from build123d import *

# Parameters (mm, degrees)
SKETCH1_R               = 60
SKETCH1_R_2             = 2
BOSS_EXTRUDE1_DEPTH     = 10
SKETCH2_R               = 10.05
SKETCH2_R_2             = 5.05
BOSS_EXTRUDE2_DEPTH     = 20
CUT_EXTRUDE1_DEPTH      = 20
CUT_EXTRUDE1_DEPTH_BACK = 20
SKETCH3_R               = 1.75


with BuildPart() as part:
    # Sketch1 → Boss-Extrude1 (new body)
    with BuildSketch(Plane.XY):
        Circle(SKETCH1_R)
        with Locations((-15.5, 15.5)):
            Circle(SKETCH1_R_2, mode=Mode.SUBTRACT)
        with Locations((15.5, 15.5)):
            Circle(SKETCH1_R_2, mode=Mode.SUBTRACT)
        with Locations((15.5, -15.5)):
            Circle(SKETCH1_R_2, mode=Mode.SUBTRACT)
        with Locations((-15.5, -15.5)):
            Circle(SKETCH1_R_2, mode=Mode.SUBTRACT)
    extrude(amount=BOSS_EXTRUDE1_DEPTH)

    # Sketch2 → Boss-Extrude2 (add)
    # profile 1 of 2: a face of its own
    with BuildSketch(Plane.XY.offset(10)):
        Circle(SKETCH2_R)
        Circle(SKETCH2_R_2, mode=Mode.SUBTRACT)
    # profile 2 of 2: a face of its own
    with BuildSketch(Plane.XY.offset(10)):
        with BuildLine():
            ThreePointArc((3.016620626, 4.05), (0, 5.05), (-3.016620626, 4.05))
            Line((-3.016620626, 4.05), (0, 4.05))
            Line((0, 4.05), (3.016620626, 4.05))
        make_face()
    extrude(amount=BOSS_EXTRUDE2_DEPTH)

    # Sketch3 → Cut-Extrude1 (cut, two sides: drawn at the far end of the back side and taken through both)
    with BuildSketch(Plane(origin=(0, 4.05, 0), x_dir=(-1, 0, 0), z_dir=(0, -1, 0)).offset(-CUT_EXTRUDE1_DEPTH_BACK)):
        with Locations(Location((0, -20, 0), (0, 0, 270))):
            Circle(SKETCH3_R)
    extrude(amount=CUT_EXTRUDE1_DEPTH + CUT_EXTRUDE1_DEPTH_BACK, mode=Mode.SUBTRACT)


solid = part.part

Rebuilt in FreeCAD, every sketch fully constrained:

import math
import FreeCAD as App
import Part
import Sketcher

V = App.Vector
Q = App.Units.Quantity

doc = App.newDocument("Part")
body = doc.addObject("PartDesign::Body", "Body")

# Sketch on XY plane
sketch1 = body.newObject("Sketcher::SketchObject", "Sketch")
sketch1.AttachmentSupport = (doc.getObject("XY_Plane"), [""])
sketch1.MapMode = "FlatFace"
sketch1.addGeometry([
    Part.Circle(V(0, 0, 0), V(0, 0, 1), 60),  # 0
    Part.Circle(V(-15.5, -15.5, 0), V(0, 0, 1), 2),  # 1
    Part.Circle(V(15.5, -15.5, 0), V(0, 0, 1), 2),  # 2
    Part.Circle(V(-15.5, 15.5, 0), V(0, 0, 1), 2),  # 3
    Part.Circle(V(15.5, 15.5, 0), V(0, 0, 1), 2),  # 4
], False)
sketch1.addConstraint([
    Sketcher.Constraint("Coincident", 0, 3, -1, 1),
    Sketcher.Constraint("Equal", 1, 2),
    Sketcher.Constraint("Equal", 2, 3),
    Sketcher.Constraint("Equal", 3, 4),
    Sketcher.Constraint("Symmetric", 2, 3, 3, 3, -1, 1),
    Sketcher.Constraint("Symmetric", 1, 3, 4, 3, -1, 1),
    Sketcher.Constraint("Symmetric", 1, 3, 2, 3, -2),
    Sketcher.Constraint("Diameter", 0, Q("120 mm")),
    Sketcher.Constraint("Diameter", 1, Q("4 mm")),
    Sketcher.Constraint("DistanceX", 1, 3, 2, 3, Q("31 mm")),
    Sketcher.Constraint("DistanceY", 1, 3, 3, 3, Q("31 mm")),
])
pad1 = body.newObject("PartDesign::Pad", "Pad")
pad1.Profile = sketch1
pad1.Length = 10

# Sketch on XY plane
sketch2 = body.newObject("Sketcher::SketchObject", "Sketch001")
sketch2.AttachmentSupport = (doc.getObject("XY_Plane"), [""])
sketch2.MapMode = "FlatFace"
sketch2.AttachmentOffset = App.Placement(V(0, 0, 10), App.Rotation())
sketch2.addGeometry([
    Part.Circle(V(0, 0, 0), V(0, 0, 1), 10),
    Part.ArcOfCircle(Part.Circle(V(0, 0, 0), V(0, 0, 1), 5), math.radians(127), math.radians(413)),
    Part.LineSegment(V(-3, 4, 0), V(3, 4, 0)),
], False)
sketch2.addConstraint([
    Sketcher.Constraint("Coincident", 1, 1, 2, 1),
    Sketcher.Constraint("Coincident", 2, 2, 1, 2),
    Sketcher.Constraint("Horizontal", 2),
    Sketcher.Constraint("Coincident", 0, 3, -1, 1),
    Sketcher.Constraint("Coincident", 1, 3, -1, 1),
    Sketcher.Constraint("Diameter", 0, Q("20.1 mm")),
    Sketcher.Constraint("Radius", 1, Q("5.05 mm")),
    Sketcher.Constraint("DistanceY", -1, 1, 1, 1, Q("4.05 mm")),
])
pad2 = body.newObject("PartDesign::Pad", "Pad001")
pad2.Profile = sketch2
pad2.Length = 20

# Sketch on XZ plane
sketch3 = body.newObject("Sketcher::SketchObject", "Sketch002")
sketch3.AttachmentSupport = (doc.getObject("XZ_Plane"), [""])
sketch3.MapMode = "FlatFace"
sketch3.AttachmentOffset = App.Placement(V(0, 0, -4.05), App.Rotation())
sketch3.addGeometry(Part.Circle(V(0, 20, 0), V(0, 0, 1), 1.8), False)
sketch3.addConstraint([
    Sketcher.Constraint("PointOnObject", 0, 3, -2),
    Sketcher.Constraint("Diameter", 0, Q("3.5 mm")),
    Sketcher.Constraint("DistanceY", -1, 1, 0, 3, Q("20 mm")),
])
pocket1 = body.newObject("PartDesign::Pocket", "Pocket")
pocket1.Profile = sketch3
pocket1.Type = "ThroughAll"
pocket1.Midplane = True

doc.recompute()
